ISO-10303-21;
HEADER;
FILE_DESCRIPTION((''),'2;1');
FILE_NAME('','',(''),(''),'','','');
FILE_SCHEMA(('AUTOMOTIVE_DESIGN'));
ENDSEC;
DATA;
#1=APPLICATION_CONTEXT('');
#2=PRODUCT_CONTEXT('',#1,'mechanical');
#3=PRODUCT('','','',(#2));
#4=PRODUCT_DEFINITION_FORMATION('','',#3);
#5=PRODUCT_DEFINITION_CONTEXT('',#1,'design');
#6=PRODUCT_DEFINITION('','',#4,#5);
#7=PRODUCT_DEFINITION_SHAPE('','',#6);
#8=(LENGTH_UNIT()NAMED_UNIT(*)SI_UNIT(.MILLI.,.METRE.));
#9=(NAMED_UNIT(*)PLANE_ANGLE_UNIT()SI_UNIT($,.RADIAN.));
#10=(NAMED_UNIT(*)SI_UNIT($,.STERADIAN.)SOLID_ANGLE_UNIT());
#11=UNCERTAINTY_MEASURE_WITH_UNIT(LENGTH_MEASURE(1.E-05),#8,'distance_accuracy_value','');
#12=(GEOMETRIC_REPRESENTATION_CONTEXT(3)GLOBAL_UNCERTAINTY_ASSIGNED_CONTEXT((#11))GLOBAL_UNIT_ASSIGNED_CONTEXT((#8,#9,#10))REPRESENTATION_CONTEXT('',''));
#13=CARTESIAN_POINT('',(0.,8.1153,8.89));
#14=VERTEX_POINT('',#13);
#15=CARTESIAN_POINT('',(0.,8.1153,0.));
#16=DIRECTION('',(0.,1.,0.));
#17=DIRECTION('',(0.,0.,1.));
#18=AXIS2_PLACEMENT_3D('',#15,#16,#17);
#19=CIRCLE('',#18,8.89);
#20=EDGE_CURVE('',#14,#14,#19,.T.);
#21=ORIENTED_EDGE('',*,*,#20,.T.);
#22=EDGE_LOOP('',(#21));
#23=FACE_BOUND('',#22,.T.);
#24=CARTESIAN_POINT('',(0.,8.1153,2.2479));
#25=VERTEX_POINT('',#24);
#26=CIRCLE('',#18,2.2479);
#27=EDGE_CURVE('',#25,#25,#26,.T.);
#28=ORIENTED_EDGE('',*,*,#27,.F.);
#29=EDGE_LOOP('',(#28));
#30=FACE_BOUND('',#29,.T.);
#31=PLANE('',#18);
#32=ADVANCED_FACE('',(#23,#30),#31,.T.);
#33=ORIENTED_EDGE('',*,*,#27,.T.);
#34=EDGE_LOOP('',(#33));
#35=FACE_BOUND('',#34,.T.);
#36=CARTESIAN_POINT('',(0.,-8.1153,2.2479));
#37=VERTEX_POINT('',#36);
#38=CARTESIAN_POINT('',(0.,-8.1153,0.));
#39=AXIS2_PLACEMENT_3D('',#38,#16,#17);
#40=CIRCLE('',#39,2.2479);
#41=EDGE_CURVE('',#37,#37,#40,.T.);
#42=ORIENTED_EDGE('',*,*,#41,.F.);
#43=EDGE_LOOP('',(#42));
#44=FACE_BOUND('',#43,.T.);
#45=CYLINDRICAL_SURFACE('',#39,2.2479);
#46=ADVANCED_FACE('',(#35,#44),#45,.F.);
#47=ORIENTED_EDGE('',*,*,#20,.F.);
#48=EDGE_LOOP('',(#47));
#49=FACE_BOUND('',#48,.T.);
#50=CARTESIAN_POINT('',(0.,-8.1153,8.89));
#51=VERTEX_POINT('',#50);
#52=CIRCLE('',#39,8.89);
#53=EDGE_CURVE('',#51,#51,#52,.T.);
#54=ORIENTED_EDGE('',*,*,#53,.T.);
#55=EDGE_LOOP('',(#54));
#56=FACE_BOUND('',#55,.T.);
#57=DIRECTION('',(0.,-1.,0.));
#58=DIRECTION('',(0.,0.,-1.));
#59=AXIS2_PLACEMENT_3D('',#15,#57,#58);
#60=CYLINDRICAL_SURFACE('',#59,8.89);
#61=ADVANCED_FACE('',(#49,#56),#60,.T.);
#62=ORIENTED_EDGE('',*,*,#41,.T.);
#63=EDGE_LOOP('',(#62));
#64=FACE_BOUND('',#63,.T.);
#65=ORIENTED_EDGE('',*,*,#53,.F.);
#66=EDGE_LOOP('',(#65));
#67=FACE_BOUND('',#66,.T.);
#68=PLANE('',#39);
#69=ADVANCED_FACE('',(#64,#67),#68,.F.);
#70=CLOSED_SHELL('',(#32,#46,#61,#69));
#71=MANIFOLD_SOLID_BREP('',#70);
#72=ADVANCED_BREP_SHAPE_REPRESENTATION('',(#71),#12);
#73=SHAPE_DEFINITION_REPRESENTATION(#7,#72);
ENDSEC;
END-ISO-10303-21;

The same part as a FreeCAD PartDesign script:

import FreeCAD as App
import Part
import Sketcher
from FreeCAD import Vector
Q = App.Units.Quantity

doc = App.newDocument("Part")
body = doc.addObject("PartDesign::Body", "Body")

# Sketch on XZ plane
sketch1 = body.newObject("Sketcher::SketchObject", "Sketch")
sketch1.AttachmentSupport = (doc.getObject("XZ_Plane"), [""])
sketch1.MapMode = "FlatFace"
sketch1.addGeometry(Part.Circle(Vector(0, 0, 0), Vector(0, 0, 1), 8.89), False)
sketch1.addConstraint(Sketcher.Constraint("Coincident", 0, 3, -1, 1))
sketch1.addConstraint(Sketcher.Constraint("Diameter", 0, Q("0.7 in")))
pad1 = body.newObject("PartDesign::Pad", "Pad")
pad1.Profile = sketch1
pad1.Length = Q("0.639 in")
pad1.Midplane = True

# Sketch on XZ plane
sketch2 = body.newObject("Sketcher::SketchObject", "Sketch001")
sketch2.AttachmentSupport = (doc.getObject("XZ_Plane"), [""])
sketch2.MapMode = "FlatFace"
sketch2.AttachmentOffset = App.Placement(Vector(0, 0, -0.3195 * 25.4), App.Rotation())
sketch2.addGeometry(Part.Circle(Vector(0, 0, 0), Vector(0, 0, 1), 2.2479), False)
sketch2.addConstraint(Sketcher.Constraint("Coincident", 0, 3, -1, 1))
sketch2.addConstraint(Sketcher.Constraint("Diameter", 0, Q("0.177 in")))
pocket1 = body.newObject("PartDesign::Pocket", "Pocket")
pocket1.Profile = sketch2
pocket1.Type = "ThroughAll"
pocket1.Midplane = True

doc.recompute()
